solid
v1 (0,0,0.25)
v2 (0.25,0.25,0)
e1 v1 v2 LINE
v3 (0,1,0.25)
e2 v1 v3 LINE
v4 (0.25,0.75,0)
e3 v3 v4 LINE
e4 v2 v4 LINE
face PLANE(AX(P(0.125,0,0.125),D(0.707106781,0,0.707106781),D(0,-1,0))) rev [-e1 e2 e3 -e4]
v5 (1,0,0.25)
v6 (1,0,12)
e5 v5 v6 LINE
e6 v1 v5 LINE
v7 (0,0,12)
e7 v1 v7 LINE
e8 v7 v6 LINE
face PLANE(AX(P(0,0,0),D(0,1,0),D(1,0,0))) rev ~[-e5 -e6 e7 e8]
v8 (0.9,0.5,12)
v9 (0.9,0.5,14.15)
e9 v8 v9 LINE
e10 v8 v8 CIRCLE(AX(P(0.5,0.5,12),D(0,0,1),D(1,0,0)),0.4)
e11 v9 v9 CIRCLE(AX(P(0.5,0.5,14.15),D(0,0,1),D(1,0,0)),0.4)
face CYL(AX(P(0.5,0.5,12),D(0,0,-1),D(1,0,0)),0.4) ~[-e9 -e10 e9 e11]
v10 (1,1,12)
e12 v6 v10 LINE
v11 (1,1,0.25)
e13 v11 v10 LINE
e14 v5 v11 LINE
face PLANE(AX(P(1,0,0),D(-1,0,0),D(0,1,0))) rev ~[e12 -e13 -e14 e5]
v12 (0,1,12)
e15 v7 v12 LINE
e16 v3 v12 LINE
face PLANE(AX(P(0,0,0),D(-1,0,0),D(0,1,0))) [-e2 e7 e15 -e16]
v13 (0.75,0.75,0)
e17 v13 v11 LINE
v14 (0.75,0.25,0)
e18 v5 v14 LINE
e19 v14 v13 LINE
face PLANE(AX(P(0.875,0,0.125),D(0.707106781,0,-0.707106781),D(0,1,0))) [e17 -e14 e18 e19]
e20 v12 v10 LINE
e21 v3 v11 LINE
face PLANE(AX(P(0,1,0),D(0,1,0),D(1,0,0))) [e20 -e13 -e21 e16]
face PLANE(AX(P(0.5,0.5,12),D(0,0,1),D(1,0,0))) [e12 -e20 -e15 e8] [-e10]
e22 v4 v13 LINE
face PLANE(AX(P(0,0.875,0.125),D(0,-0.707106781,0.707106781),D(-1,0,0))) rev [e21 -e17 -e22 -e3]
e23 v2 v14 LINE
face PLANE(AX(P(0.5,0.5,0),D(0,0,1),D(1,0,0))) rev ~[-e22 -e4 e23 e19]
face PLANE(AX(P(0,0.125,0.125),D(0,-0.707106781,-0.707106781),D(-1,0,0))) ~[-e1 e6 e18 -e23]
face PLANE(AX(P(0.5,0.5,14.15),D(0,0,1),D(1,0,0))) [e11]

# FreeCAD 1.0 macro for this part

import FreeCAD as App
import Part
import Sketcher


def edges_at(feature, points):
    """Names of the edges that pass closest to the given points."""
    edges = feature.Shape.Edges
    near = lambda p: min(range(len(edges)), key=lambda i: edges[i].distToShape(Part.Vertex(*p))[0])
    return sorted({f"Edge{near(p) + 1}" for p in points})


def add_polygon(sketch, points):
    """Adds a closed chain of lines whose ends are joined by coincident constraints."""
    first, n = sketch.GeometryCount, len(points)
    for a, b in zip(points, points[1:] + points[:1]):
        sketch.addGeometry(Part.LineSegment(App.Vector(*a, 0), App.Vector(*b, 0)), False)
    for i in range(n):
        sketch.addConstraint(Sketcher.Constraint("Coincident", first + i, 2, first + (i + 1) % n, 1))

doc = App.newDocument("Part")
body = doc.addObject("PartDesign::Body", "Body")

# Sketch on XY plane
sketch1 = body.newObject("Sketcher::SketchObject", "Sketch")
sketch1.AttachmentSupport = (doc.getObject("XY_Plane"), [""])
sketch1.MapMode = "FlatFace"
add_polygon(sketch1, [(0, 1), (0, 0), (1, 0), (1, 1)])  # lines 0-3
sketch1.addConstraint([
    Sketcher.Constraint("Vertical", 0),
    Sketcher.Constraint("Horizontal", 1),
    Sketcher.Constraint("Vertical", 2),
    Sketcher.Constraint("Horizontal", 3),
    Sketcher.Constraint("Coincident", 0, 2, -1, 1),
    Sketcher.Constraint("Equal", 3, 0),
    Sketcher.Constraint("DistanceX", 1, 1, 1, 2, 1.0),
])
pad1 = body.newObject("PartDesign::Pad", "Pad")
pad1.Profile = sketch1
pad1.Length = 12

# Sketch on XY plane
sketch2 = body.newObject("Sketcher::SketchObject", "Sketch001")
sketch2.AttachmentSupport = (doc.getObject("XY_Plane"), [""])
sketch2.MapMode = "FlatFace"
sketch2.AttachmentOffset = App.Placement(App.Vector(0, 0, 12), App.Rotation())
sketch2.addGeometry(Part.Circle(App.Vector(0.5, 0.5, 0), App.Vector(0, 0, 1), 0.4), False)
sketch2.addConstraint([
    Sketcher.Constraint("Diameter", 0, 0.8),
    Sketcher.Constraint("DistanceX", -1, 1, 0, 3, 0.5),
    Sketcher.Constraint("DistanceY", -1, 1, 0, 3, 0.5),
])
pad2 = body.newObject("PartDesign::Pad", "Pad001")
pad2.Profile = sketch2
pad2.Length = 2.15
doc.recompute()

chamfer = body.newObject("PartDesign::Chamfer", "Chamfer")
chamfer.Base = (pad2, edges_at(pad2, [
    (0.5, 0, 0),
    (0, 0.5, 0),
    (1, 0.5, 0),
    (0.5, 1, 0),
]))
chamfer.Size = 0.25

doc.recompute()
